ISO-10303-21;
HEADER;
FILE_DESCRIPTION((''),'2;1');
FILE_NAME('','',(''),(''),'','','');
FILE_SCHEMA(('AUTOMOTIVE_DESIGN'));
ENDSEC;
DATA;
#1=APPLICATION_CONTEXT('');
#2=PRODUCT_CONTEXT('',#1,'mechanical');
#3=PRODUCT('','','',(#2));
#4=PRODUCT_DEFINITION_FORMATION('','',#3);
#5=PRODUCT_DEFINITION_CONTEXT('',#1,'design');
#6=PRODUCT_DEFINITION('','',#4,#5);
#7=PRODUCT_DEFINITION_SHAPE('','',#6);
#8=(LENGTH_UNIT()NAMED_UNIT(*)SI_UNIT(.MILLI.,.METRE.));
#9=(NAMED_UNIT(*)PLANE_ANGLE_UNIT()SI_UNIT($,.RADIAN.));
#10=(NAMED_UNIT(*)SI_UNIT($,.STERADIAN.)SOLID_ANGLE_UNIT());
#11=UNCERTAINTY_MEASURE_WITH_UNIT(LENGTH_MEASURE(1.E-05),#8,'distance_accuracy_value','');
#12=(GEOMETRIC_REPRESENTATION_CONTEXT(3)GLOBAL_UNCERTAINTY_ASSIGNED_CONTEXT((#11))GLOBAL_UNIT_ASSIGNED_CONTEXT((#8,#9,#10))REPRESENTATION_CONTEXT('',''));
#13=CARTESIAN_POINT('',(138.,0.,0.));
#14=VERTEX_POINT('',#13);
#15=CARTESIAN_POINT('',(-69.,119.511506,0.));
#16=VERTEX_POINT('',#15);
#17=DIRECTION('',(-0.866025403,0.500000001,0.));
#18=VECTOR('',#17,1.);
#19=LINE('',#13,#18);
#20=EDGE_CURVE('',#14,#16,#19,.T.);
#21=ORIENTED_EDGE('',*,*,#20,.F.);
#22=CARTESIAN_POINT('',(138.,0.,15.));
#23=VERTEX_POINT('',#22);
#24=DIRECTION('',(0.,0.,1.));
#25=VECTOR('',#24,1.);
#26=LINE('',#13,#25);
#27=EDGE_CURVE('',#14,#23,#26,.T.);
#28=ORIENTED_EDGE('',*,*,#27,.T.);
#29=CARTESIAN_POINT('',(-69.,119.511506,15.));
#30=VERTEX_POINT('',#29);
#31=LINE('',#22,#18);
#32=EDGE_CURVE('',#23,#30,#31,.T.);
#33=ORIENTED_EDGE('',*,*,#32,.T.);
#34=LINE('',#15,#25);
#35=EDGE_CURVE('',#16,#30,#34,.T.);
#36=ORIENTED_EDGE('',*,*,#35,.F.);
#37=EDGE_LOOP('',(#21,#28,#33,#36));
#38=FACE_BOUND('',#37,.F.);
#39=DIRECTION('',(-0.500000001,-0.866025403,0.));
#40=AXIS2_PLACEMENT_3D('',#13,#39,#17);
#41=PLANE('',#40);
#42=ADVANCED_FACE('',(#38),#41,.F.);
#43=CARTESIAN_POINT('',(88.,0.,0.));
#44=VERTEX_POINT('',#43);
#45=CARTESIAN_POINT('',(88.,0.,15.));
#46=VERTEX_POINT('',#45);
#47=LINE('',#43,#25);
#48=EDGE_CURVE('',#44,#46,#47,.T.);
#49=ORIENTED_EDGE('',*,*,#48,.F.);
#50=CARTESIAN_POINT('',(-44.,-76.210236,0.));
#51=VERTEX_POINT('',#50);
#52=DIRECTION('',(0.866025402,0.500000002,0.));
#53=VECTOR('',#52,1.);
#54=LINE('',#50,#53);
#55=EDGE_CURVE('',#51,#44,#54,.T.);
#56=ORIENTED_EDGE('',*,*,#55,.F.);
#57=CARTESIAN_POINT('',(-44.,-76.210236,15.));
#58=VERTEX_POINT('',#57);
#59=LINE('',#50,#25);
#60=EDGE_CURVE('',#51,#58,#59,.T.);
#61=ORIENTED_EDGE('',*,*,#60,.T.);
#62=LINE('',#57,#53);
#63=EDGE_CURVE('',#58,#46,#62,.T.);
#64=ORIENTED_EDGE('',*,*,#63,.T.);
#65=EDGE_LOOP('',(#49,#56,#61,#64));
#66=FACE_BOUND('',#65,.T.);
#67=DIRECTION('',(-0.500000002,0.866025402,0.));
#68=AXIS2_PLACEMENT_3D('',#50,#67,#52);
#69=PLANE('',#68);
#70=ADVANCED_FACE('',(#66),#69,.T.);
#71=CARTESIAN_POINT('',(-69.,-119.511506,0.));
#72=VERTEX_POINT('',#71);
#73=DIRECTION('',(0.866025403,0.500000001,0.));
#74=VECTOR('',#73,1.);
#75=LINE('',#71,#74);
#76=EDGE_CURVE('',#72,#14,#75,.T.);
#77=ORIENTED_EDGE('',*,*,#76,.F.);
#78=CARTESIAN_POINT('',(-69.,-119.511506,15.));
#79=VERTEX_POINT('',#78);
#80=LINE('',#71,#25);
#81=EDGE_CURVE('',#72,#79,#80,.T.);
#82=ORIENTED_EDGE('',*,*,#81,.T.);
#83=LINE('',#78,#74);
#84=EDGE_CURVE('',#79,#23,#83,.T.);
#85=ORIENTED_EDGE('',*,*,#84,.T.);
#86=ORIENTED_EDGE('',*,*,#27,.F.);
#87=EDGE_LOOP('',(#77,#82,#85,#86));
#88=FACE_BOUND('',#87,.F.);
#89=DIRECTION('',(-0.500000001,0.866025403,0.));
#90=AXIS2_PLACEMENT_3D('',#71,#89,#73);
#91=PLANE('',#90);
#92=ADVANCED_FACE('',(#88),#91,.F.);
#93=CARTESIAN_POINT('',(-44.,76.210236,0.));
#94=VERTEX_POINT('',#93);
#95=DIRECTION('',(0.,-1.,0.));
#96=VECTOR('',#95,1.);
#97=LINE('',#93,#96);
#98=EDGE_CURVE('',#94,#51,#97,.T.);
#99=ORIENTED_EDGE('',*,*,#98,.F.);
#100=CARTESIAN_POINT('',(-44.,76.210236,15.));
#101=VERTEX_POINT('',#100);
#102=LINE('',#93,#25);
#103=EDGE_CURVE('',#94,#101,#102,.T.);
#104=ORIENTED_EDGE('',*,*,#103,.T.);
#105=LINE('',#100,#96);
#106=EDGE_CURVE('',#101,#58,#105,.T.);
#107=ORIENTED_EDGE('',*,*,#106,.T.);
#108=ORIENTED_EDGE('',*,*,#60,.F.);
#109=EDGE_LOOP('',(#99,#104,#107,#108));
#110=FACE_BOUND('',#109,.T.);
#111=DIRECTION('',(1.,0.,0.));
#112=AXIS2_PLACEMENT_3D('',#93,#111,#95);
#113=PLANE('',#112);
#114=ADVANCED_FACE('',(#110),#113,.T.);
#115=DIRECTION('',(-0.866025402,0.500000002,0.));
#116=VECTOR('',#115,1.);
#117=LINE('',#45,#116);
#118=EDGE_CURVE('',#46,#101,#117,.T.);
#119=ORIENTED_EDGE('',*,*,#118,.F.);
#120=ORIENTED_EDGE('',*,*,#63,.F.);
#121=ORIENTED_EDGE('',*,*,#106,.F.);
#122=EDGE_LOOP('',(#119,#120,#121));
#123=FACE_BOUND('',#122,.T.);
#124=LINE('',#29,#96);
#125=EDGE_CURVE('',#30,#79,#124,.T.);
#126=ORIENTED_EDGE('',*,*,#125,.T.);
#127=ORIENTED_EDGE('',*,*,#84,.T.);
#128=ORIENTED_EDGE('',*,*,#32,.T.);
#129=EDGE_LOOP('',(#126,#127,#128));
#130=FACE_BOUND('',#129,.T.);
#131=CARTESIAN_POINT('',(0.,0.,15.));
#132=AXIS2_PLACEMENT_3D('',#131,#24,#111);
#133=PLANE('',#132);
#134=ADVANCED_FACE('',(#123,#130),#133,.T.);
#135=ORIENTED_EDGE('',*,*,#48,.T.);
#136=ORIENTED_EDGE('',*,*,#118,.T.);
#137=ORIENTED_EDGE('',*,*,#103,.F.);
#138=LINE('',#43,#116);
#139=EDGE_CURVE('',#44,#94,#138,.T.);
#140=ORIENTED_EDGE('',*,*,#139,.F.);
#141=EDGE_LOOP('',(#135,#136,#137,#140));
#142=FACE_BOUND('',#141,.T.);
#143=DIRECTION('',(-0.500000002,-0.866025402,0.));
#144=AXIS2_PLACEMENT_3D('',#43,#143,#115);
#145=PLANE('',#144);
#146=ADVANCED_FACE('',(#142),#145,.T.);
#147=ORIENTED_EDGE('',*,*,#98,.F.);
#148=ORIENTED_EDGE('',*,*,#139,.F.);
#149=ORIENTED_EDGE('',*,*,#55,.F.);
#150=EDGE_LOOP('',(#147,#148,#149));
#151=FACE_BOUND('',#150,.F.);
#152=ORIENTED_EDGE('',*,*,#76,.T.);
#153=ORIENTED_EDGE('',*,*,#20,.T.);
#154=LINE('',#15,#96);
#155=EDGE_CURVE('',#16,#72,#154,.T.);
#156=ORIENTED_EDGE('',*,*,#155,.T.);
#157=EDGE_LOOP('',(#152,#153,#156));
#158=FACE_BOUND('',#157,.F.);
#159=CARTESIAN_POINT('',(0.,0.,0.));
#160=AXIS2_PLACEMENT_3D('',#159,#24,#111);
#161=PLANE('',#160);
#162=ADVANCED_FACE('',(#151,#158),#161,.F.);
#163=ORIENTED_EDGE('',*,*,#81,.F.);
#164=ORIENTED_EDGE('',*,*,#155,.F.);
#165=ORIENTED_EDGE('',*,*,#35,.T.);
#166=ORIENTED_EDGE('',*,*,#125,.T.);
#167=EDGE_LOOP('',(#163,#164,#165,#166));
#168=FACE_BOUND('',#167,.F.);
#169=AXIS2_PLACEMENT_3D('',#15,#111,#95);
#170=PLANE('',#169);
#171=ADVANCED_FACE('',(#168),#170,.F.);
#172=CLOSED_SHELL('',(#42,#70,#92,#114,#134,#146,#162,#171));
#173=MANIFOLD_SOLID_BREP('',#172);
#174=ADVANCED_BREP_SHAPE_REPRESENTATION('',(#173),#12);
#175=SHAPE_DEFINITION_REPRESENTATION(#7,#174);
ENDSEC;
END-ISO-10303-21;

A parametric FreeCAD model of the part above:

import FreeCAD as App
import Part
import Sketcher

V = App.Vector
Q = App.Units.Quantity

doc = App.newDocument("Part")
body = doc.addObject("PartDesign::Body", "Body")

# Sketch on XY plane
sketch1 = body.newObject("Sketcher::SketchObject", "Sketch")
sketch1.AttachmentSupport = (doc.getObject("XY_Plane"), [""])
sketch1.MapMode = "FlatFace"
sketch1.addGeometry([
    Part.LineSegment(V(88, 0, 0), V(-44, 76, 0)),
    Part.LineSegment(V(-44, 76, 0), V(-44, -76, 0)),
    Part.LineSegment(V(-44, -76, 0), V(88, 0, 0)),
], False)
sketch1.addConstraint([
    Sketcher.Constraint("Coincident", 0, 2, 1, 1),
    Sketcher.Constraint("Coincident", 1, 2, 2, 1),
    Sketcher.Constraint("Coincident", 2, 2, 0, 1),
    Sketcher.Constraint("Vertical", 1),
    Sketcher.Constraint("PointOnObject", 2, 2, -1),
    Sketcher.Constraint("Equal", 0, 2),
    Sketcher.Constraint("Angle", 0, Q("150 deg")),
    Sketcher.Constraint("DistanceX", 0, 2, -1, 1, Q("44 mm")),
    Sketcher.Constraint("DistanceX", -1, 1, 2, 2, Q("88 mm")),
])
pad1 = body.newObject("PartDesign::Pad", "Pad")
pad1.Profile = sketch1
pad1.Length = 15
body2 = doc.addObject("PartDesign::Body", "Body001")

# Sketch on XY plane
sketch2 = body2.newObject("Sketcher::SketchObject", "Sketch001")
sketch2.AttachmentSupport = (doc.getObject("XY_Plane001"), [""])
sketch2.MapMode = "FlatFace"
sketch2.addGeometry([
    Part.LineSegment(V(138, 0, 0), V(-69, 120, 0)),
    Part.LineSegment(V(-69, 120, 0), V(-69, -120, 0)),
    Part.LineSegment(V(-69, -120, 0), V(138, 0, 0)),
], False)
sketch2.addConstraint([
    Sketcher.Constraint("Coincident", 0, 2, 1, 1),
    Sketcher.Constraint("Coincident", 1, 2, 2, 1),
    Sketcher.Constraint("Coincident", 2, 2, 0, 1),
    Sketcher.Constraint("Vertical", 1),
    Sketcher.Constraint("PointOnObject", 2, 2, -1),
    Sketcher.Constraint("Equal", 0, 2),
    Sketcher.Constraint("Angle", 0, Q("150 deg")),
    Sketcher.Constraint("DistanceX", 0, 2, -1, 1, Q("69 mm")),
    Sketcher.Constraint("DistanceX", -1, 1, 2, 2, Q("138 mm")),
])
pad2 = body2.newObject("PartDesign::Pad", "Pad001")
pad2.Profile = sketch2
pad2.Length = 15
doc.recompute()

boolean = body2.newObject("PartDesign::Boolean", "Boolean")
boolean.Type = "Cut"
boolean.addObjects([body])

doc.recompute()
